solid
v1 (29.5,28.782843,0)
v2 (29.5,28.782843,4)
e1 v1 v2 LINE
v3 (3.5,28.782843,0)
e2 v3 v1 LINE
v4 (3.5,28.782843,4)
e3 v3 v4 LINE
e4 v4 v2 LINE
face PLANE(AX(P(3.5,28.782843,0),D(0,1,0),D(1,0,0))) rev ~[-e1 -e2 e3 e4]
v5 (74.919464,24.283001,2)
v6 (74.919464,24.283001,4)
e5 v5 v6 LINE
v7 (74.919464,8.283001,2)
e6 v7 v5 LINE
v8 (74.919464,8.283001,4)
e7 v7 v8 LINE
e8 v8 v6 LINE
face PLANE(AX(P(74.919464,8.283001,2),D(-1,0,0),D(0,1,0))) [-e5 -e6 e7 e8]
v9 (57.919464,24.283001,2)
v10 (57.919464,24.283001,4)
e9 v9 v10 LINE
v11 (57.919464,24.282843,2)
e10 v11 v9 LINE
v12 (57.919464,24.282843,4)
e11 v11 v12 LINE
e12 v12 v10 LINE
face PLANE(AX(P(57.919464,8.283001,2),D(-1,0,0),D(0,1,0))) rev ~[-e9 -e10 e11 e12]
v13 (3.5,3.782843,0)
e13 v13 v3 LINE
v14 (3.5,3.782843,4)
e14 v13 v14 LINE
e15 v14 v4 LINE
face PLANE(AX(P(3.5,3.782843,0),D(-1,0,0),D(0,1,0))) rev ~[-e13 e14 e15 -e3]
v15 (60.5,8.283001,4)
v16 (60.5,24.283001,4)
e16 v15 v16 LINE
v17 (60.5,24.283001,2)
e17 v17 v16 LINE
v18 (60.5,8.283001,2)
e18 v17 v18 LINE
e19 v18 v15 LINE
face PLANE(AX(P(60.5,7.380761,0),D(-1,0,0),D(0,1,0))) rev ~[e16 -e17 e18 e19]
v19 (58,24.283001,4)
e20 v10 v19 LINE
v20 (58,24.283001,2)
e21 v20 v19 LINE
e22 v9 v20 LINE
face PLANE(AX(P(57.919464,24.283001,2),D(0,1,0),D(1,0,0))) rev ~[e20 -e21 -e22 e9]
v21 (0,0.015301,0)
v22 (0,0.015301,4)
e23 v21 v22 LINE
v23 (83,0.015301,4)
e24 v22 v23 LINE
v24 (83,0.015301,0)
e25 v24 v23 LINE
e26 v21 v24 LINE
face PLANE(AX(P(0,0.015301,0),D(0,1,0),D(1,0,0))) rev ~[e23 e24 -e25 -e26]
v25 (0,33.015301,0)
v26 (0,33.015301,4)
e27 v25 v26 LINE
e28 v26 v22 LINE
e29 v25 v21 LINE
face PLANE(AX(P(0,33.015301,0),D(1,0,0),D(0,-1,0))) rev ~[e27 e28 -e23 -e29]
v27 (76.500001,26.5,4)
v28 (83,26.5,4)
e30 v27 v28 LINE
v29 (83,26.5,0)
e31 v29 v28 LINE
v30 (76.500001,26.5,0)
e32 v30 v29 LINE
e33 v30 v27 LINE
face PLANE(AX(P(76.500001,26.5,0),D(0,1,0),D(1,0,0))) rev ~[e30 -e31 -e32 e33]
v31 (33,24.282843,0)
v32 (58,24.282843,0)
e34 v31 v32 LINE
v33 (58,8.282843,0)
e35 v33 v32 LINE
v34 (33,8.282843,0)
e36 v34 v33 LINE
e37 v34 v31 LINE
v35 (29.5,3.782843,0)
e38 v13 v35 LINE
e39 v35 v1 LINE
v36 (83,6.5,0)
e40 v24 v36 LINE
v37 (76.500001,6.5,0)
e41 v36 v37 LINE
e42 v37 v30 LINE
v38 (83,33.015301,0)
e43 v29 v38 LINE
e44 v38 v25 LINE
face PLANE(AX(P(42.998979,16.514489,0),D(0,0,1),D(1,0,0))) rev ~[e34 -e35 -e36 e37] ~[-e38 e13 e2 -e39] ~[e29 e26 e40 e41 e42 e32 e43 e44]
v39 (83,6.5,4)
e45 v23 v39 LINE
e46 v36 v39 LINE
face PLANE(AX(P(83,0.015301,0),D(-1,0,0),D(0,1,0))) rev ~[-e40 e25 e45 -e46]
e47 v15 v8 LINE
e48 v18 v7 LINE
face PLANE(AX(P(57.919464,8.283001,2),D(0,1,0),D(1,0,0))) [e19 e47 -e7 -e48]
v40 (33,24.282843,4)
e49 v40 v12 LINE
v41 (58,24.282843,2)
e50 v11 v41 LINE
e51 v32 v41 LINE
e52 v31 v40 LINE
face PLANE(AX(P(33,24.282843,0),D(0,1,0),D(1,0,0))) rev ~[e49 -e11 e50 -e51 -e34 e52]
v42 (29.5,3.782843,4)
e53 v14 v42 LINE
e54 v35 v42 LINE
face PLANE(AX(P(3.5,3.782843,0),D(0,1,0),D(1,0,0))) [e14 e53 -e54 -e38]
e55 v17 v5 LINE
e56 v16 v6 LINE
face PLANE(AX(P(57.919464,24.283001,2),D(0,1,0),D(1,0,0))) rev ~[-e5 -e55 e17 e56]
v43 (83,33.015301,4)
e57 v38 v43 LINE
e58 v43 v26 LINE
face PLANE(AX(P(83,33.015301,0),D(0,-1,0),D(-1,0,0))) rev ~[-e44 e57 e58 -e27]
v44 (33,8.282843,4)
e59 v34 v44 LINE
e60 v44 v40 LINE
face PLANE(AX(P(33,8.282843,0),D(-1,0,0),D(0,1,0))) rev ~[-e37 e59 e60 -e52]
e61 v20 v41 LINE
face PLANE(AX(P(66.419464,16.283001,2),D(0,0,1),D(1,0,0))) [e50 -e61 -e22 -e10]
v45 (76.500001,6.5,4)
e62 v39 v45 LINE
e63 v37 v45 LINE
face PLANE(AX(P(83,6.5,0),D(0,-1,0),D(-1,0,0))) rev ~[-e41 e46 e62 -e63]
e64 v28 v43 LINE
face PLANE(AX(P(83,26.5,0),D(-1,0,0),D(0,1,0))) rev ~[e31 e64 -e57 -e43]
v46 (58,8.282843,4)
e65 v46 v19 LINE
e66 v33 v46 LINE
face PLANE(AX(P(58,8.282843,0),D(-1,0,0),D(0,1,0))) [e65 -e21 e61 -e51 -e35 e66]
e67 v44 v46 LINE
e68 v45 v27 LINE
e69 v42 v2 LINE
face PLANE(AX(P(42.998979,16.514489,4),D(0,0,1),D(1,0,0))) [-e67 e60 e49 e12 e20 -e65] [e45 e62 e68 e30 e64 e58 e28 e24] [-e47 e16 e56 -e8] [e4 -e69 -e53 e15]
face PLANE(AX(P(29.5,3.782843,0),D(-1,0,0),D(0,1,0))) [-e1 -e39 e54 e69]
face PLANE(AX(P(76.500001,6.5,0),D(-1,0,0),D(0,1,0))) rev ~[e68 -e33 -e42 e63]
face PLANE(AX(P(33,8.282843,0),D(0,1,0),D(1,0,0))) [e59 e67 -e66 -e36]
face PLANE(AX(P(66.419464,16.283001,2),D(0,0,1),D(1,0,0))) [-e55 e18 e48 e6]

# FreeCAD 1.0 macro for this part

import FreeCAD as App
import Part
import Sketcher


def add_polygon(sketch, points):
    """Adds a closed chain of lines whose ends are joined by coincident constraints."""
    first, n = sketch.GeometryCount, len(points)
    for a, b in zip(points, points[1:] + points[:1]):
        sketch.addGeometry(Part.LineSegment(App.Vector(*a, 0), App.Vector(*b, 0)), False)
    for i in range(n):
        sketch.addConstraint(Sketcher.Constraint("Coincident", first + i, 2, first + (i + 1) % n, 1))

doc = App.newDocument("Part")
body = doc.addObject("PartDesign::Body", "Body")

sketch1 = body.newObject("Sketcher::SketchObject", "Sketch")
sketch1.AttachmentSupport = (doc.getObject("XY_Plane"), [""])
sketch1.MapMode = "FlatFace"
add_polygon(sketch1, [(58, 24), (58, 8), (75, 8), (75, 24)])
sketch1.addConstraint([
    Sketcher.Constraint("Vertical", 0),
    Sketcher.Constraint("Horizontal", 1),
    Sketcher.Constraint("Vertical", 2),
    Sketcher.Constraint("Horizontal", 3),
    Sketcher.Constraint("DistanceX", 1, 1, 1, 2, 17.0),
    Sketcher.Constraint("DistanceY", 0, 2, 0, 1, 16.0),
    Sketcher.Constraint("DistanceY", -1, 1, 0, 2, 8.283001),
    Sketcher.Constraint("DistanceX", -1, 1, 0, 2, 57.919464),
])
pad1 = body.newObject("PartDesign::Pad", "Pad")
pad1.Profile = sketch1
pad1.Length = 2
body2 = doc.addObject("PartDesign::Body", "Body001")
doc.recompute()

body.Placement = App.Placement(App.Vector(0, 0, 2), App.Rotation(App.Vector(0, 0, 1), 0))
boolean = body2.newObject("PartDesign::Boolean", "Boolean")
boolean.Type = "Fuse"
boolean.addObjects([body])
body3 = doc.addObject("PartDesign::Body", "Body002")

sketch2 = body3.newObject("Sketcher::SketchObject", "Sketch001")
sketch2.AttachmentSupport = (doc.getObject("XY_Plane002"), [""])
sketch2.MapMode = "FlatFace"
add_polygon(sketch2, [(58, 25.4), (58, 7.4), (60.5, 7.4), (60.5, 25.4)])
sketch2.addConstraint([
    Sketcher.Constraint("Vertical", 0),
    Sketcher.Constraint("Horizontal", 1),
    Sketcher.Constraint("Vertical", 2),
    Sketcher.Constraint("Horizontal", 3),
    Sketcher.Constraint("DistanceY", 0, 2, 0, 1, 18.0),
    Sketcher.Constraint("DistanceX", 1, 1, 1, 2, 2.5),
    Sketcher.Constraint("DistanceX", -1, 1, 0, 2, 58.0),
    Sketcher.Constraint("DistanceY", -1, 1, 0, 2, 7.380761),
])
pad2 = body3.newObject("PartDesign::Pad", "Pad001")
pad2.Profile = sketch2
pad2.Length = 4
body4 = doc.addObject("PartDesign::Body", "Body003")

sketch3 = body4.newObject("Sketcher::SketchObject", "Sketch002")
sketch3.AttachmentSupport = (doc.getObject("XY_Plane003"), [""])
sketch3.MapMode = "FlatFace"
add_polygon(sketch3, [(0, 33), (0, 0), (83, 0), (83, 6), (77, 6), (77, 26), (83, 26), (83, 33)])
add_polygon(sketch3, [(30, 4), (4, 4), (4, 29), (30, 29)])
add_polygon(sketch3, [(58, 8), (33, 8), (33, 24), (58, 24)])
sketch3.addConstraint([
    Sketcher.Constraint("Vertical", 0),
    Sketcher.Constraint("Horizontal", 1),
    Sketcher.Constraint("Vertical", 2),
    Sketcher.Constraint("Horizontal", 3),
    Sketcher.Constraint("Vertical", 4),
    Sketcher.Constraint("Horizontal", 5),
    Sketcher.Constraint("Vertical", 6),
    Sketcher.Constraint("Horizontal", 7),
    Sketcher.Constraint("Horizontal", 8),
    Sketcher.Constraint("Vertical", 9),
    Sketcher.Constraint("Horizontal", 10),
    Sketcher.Constraint("Vertical", 11),
    Sketcher.Constraint("Horizontal", 12),
    Sketcher.Constraint("Vertical", 13),
    Sketcher.Constraint("Horizontal", 14),
    Sketcher.Constraint("Vertical", 15),
    Sketcher.Constraint("PointOnObject", 0, 2, -2),
    Sketcher.Constraint("Vertical", 2, 2, 5, 2),
    Sketcher.Constraint("Equal", 14, 9),
    Sketcher.Constraint("DistanceX", 1, 1, 1, 2, 83.0),
    Sketcher.Constraint("DistanceX", 8, 2, 8, 1, 26.0),
    Sketcher.Constraint("DistanceX", 12, 2, 12, 1, 25.0),
    Sketcher.Constraint("DistanceY", 0, 2, 0, 1, 33.0),
    Sketcher.Constraint("DistanceY", 4, 1, 4, 2, 20.0),
    Sketcher.Constraint("DistanceY", 13, 1, 13, 2, 16.0),
    Sketcher.Constraint("DistanceX", 3, 2, 3, 1, 6.499999),
    Sketcher.Constraint("DistanceX", -1, 1, 12, 2, 33.0),
    Sketcher.Constraint("DistanceX", 8, 2, 3, 2, 73.000001),
    Sketcher.Constraint("DistanceY", -1, 1, 2, 2, 6.5),
    Sketcher.Constraint("DistanceY", 11, 2, 12, 2, 4.5),
    Sketcher.Constraint("DistanceY", 2, 1, 2, 2, 6.484699),
    Sketcher.Constraint("DistanceY", 8, 2, 7, 2, 29.232458),
])
pad3 = body4.newObject("PartDesign::Pad", "Pad002")
pad3.Profile = sketch3
pad3.Length = 4
doc.recompute()

boolean2 = body4.newObject("PartDesign::Boolean", "Boolean001")
boolean2.Type = "Cut"
boolean2.addObjects([body2])
doc.recompute()

boolean3 = body4.newObject("PartDesign::Boolean", "Boolean002")
boolean3.Type = "Fuse"
boolean3.addObjects([body3])

doc.recompute()
